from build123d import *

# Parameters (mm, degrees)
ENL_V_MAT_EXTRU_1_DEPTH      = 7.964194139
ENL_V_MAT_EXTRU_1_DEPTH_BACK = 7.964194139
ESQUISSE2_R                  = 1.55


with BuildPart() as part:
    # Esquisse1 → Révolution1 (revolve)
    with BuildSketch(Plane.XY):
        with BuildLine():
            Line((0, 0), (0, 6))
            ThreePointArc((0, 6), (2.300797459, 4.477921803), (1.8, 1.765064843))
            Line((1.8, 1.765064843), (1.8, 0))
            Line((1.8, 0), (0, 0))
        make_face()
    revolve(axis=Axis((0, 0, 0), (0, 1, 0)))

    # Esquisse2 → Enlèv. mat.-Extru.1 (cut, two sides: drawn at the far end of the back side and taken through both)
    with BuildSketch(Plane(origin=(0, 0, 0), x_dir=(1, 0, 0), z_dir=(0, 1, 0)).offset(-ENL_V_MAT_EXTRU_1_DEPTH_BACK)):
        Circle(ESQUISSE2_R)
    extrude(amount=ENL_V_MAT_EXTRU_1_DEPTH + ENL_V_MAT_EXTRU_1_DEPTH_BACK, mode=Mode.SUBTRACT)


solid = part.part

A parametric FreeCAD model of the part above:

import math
import FreeCAD as App
import Part
import Sketcher

doc = App.newDocument("Part")
body = doc.addObject("PartDesign::Body", "Body")

sketch1 = body.newObject("Sketcher::SketchObject", "Sketch")
sketch1.AttachmentSupport = (doc.getObject("XY_Plane"), [""])
sketch1.MapMode = "FlatFace"
sketch1.addGeometry(Part.LineSegment(App.Vector(0, 6, 0), App.Vector(0, 0, 0)), False)
sketch1.addGeometry(Part.LineSegment(App.Vector(0, 0, 0), App.Vector(1.8, 0, 0)), False)
sketch1.addGeometry(Part.LineSegment(App.Vector(1.8, 0, 0), App.Vector(1.8, 1.8, 0)), False)
sketch1.addGeometry(Part.ArcOfCircle(Part.Circle(App.Vector(0, 3.5, 0), App.Vector(0, 0, 1), 2.5), math.radians(-44), math.radians(90)), False)
sketch1.addConstraint(Sketcher.Constraint("Coincident", 0, 2, 1, 1))
sketch1.addConstraint(Sketcher.Constraint("Coincident", 1, 2, 2, 1))
sketch1.addConstraint(Sketcher.Constraint("Coincident", 2, 2, 3, 1))
sketch1.addConstraint(Sketcher.Constraint("Coincident", 3, 2, 0, 1))
sketch1.addConstraint(Sketcher.Constraint("Vertical", 0))
sketch1.addConstraint(Sketcher.Constraint("Horizontal", 1))
sketch1.addConstraint(Sketcher.Constraint("Vertical", 2))
sketch1.addConstraint(Sketcher.Constraint("Coincident", 0, 2, -1, 1))
sketch1.addConstraint(Sketcher.Constraint("PointOnObject", 3, 3, -2))
sketch1.addConstraint(Sketcher.Constraint("Radius", 3, 2.5))
sketch1.addConstraint(Sketcher.Constraint("DistanceY", 0, 2, 0, 1, 6.0))
sketch1.addConstraint(Sketcher.Constraint("DistanceX", 1, 1, 1, 2, 1.8))
revolution = body.newObject("PartDesign::Revolution", "Revolution")
revolution.Profile = sketch1
revolution.ReferenceAxis = (sketch1, ["V_Axis"])
revolution.Angle = 360

sketch2 = body.newObject("Sketcher::SketchObject", "Sketch001")
sketch2.AttachmentSupport = (doc.getObject("XZ_Plane"), [""])
sketch2.MapMode = "FlatFace"
sketch2.addGeometry(Part.Circle(App.Vector(0, 0, 0), App.Vector(0, 0, 1), 1.6), False)
sketch2.addConstraint(Sketcher.Constraint("Coincident", 0, 3, -1, 1))
sketch2.addConstraint(Sketcher.Constraint("Diameter", 0, 3.1))
pocket1 = body.newObject("PartDesign::Pocket", "Pocket")
pocket1.Profile = sketch2
pocket1.Type = "ThroughAll"
pocket1.Midplane = True

doc.recompute()
